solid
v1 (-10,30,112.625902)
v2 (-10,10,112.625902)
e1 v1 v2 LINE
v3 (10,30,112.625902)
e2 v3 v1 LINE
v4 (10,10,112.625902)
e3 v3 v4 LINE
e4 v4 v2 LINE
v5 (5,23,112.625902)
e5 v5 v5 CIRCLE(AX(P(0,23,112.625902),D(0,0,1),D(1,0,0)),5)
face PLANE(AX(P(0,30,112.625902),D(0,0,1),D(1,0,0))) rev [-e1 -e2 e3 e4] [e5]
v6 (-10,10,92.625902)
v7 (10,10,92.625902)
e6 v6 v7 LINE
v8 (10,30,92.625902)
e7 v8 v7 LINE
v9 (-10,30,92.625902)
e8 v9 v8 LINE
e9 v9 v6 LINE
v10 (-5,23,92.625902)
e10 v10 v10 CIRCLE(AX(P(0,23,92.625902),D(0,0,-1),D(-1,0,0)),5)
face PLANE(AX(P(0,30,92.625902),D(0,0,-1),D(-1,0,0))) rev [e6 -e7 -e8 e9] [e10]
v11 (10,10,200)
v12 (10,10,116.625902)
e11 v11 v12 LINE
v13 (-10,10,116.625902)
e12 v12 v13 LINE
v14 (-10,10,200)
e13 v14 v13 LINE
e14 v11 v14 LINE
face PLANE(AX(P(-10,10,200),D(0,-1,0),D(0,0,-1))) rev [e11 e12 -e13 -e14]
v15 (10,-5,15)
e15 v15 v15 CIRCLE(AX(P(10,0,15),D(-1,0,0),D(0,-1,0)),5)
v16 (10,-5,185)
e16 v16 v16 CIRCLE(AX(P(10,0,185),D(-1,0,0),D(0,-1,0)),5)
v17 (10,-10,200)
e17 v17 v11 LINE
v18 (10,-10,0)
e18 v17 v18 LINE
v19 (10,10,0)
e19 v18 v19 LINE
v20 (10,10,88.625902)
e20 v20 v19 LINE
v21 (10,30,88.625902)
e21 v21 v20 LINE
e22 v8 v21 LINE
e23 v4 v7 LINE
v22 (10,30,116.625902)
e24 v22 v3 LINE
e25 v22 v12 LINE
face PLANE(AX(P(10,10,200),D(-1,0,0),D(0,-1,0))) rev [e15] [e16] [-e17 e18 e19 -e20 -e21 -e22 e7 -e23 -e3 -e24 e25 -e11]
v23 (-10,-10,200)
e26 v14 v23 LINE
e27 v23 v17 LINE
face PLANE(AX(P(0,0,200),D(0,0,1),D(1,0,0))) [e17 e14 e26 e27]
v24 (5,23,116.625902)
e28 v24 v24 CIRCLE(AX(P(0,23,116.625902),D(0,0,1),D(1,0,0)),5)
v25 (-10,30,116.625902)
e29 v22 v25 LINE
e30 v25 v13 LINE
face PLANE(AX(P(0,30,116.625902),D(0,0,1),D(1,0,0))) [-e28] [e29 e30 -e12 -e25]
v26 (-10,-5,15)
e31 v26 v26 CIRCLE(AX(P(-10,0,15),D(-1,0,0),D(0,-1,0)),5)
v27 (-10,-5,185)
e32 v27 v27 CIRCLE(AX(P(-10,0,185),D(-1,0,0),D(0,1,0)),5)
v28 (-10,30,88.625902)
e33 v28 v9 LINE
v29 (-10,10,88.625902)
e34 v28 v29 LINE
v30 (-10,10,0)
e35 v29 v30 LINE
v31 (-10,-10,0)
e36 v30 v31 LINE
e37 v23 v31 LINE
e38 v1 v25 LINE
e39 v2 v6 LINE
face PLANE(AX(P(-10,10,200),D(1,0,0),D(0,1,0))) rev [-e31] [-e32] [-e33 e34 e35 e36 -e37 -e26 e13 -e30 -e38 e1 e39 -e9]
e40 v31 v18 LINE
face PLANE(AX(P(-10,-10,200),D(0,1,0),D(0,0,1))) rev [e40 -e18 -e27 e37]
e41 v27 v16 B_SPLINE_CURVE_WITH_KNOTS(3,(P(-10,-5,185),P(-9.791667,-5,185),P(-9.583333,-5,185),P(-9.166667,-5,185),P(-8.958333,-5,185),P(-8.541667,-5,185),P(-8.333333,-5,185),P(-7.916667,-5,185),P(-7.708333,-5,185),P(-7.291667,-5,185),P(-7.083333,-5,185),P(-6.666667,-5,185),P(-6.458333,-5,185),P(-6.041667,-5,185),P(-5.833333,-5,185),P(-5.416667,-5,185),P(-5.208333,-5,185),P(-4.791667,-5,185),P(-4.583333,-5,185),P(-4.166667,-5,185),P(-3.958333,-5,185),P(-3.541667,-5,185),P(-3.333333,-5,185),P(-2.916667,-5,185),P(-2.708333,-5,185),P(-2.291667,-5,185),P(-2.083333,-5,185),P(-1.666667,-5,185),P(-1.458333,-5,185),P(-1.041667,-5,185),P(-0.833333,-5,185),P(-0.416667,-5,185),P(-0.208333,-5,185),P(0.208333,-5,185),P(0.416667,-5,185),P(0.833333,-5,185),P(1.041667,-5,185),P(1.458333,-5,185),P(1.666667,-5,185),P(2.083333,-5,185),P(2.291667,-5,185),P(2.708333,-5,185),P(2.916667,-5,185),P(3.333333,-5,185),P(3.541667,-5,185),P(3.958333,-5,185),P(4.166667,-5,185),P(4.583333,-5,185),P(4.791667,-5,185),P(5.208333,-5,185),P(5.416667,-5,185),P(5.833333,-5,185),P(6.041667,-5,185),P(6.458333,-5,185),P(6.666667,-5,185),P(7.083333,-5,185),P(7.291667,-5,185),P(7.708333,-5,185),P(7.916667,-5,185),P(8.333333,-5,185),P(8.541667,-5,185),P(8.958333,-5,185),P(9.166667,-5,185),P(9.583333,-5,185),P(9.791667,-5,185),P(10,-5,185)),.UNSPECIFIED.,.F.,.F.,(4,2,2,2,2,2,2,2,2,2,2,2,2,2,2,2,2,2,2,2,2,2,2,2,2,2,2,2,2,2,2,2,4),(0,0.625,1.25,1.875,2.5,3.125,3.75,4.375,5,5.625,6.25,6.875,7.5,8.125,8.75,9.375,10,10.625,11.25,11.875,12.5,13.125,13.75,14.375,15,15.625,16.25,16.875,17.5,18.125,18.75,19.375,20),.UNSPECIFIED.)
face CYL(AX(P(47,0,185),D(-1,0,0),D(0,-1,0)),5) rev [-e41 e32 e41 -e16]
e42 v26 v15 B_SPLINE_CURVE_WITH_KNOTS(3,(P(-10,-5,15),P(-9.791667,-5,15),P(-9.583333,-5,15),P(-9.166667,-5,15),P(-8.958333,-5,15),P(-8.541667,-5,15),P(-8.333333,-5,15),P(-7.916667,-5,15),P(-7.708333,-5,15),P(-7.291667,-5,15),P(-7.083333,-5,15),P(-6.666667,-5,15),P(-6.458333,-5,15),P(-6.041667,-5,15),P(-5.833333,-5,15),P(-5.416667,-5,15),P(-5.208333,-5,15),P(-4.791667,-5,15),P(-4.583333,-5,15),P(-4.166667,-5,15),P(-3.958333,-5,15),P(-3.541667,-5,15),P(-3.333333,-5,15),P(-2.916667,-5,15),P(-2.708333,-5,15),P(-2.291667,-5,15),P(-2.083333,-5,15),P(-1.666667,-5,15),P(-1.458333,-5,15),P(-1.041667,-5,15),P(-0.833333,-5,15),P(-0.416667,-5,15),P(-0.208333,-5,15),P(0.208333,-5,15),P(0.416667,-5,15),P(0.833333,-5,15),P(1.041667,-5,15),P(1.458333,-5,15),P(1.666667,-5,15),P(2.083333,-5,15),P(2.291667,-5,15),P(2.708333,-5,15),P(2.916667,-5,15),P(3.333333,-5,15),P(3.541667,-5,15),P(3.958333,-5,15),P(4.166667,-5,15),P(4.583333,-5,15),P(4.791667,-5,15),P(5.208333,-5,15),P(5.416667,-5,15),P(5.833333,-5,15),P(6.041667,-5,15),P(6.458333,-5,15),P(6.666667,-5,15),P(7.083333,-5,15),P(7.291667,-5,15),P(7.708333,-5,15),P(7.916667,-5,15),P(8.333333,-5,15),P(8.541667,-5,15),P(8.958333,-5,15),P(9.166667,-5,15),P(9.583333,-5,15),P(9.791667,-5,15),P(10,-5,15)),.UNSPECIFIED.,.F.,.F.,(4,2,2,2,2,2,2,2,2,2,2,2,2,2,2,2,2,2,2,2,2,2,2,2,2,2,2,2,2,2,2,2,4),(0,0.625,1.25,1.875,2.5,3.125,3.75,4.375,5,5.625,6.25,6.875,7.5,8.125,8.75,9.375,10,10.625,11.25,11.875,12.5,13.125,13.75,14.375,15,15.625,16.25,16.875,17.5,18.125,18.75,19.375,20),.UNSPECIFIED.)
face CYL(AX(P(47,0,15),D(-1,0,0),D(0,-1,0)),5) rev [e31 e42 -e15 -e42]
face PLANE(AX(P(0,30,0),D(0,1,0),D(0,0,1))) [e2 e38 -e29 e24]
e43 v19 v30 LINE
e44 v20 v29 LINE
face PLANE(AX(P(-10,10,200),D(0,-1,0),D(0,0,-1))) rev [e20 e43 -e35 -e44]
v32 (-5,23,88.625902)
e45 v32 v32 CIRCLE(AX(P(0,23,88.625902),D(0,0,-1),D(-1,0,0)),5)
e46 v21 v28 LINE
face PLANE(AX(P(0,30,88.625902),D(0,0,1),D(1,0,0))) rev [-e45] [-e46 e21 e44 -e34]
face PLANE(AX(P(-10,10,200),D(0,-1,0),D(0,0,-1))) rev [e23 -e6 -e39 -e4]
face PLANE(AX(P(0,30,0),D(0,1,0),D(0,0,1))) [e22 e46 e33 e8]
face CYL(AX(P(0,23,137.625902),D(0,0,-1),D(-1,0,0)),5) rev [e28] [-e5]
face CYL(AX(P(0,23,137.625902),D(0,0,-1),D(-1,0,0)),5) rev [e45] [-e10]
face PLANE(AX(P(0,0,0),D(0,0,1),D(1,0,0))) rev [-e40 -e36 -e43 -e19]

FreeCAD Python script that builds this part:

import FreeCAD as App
import Part
import Sketcher

V = App.Vector


def add_polygon(sketch, points):
    """Adds a closed chain of lines whose ends are joined by coincident constraints."""
    first, n = sketch.GeometryCount, len(points)
    for a, b in zip(points, points[1:] + points[:1]):
        sketch.addGeometry(Part.LineSegment(App.Vector(*a, 0), App.Vector(*b, 0)), False)
    for i in range(n):
        sketch.addConstraint(Sketcher.Constraint("Coincident", first + i, 2, first + (i + 1) % n, 1))

doc = App.newDocument("Part")
params = doc.addObject("Spreadsheet::Sheet", "Params")
for row, (alias, value) in enumerate([
    ("sketch1_width", "20 mm"),
    ("pad1_length", "200 mm"),
    ("sketch2_diameter", "10 mm"),
    ("pocket1_length", "57 mm"),
    ("sketch3_width", "20 mm"),
    ("sketch3_height", "4 mm"),
    ("pad2_length", "20 mm"),
    ("sketch4_diameter", "10 mm"),
    ("pocket2_length", "49 mm"),
], start=1):
    params.set(f"A{row}", alias)
    params.set(f"B{row}", "=" + value)
    params.setAlias(f"B{row}", alias)

body = doc.addObject("PartDesign::Body", "Body")

# Sketch on XY plane
sketch1 = body.newObject("Sketcher::SketchObject", "Sketch")
sketch1.AttachmentSupport = (doc.getObject("XY_Plane"), [""])
sketch1.MapMode = "FlatFace"
add_polygon(sketch1, [(-10, 10), (-10, -10), (10, -10), (10, 10)])  # lines 0-3
sketch1.addConstraint(Sketcher.Constraint("Vertical", 0))
sketch1.addConstraint(Sketcher.Constraint("Horizontal", 1))
sketch1.addConstraint(Sketcher.Constraint("Vertical", 2))
sketch1.addConstraint(Sketcher.Constraint("Horizontal", 3))
sketch1.addConstraint(Sketcher.Constraint("Symmetric", 0, 2, 2, 2, -1, 1))
sketch1.addConstraint(Sketcher.Constraint("Equal", 3, 0))
sketch1.addConstraint(Sketcher.Constraint("DistanceX", 1, 1, 1, 2, 20.0))
sketch1.setExpression("Constraints[10]", "Params.sketch1_width")
pad1 = body.newObject("PartDesign::Pad", "Pad")
pad1.Profile = sketch1
pad1.setExpression("Length", "Params.pad1_length")

# Sketch on YZ plane
sketch2 = body.newObject("Sketcher::SketchObject", "Sketch001")
sketch2.AttachmentSupport = (doc.getObject("YZ_Plane"), [""])
sketch2.MapMode = "FlatFace"
sketch2.AttachmentOffset = App.Placement(V(0, 0, -10), App.Rotation())
sketch2.addGeometry(Part.Circle(V(0, 15, 0), V(0, 0, 1), 5), False)
sketch2.addGeometry(Part.Circle(V(0, 185, 0), V(0, 0, 1), 5), False)
sketch2.addConstraint(Sketcher.Constraint("Equal", 0, 1))
sketch2.addConstraint(Sketcher.Constraint("PointOnObject", 0, 3, -2))
sketch2.addConstraint(Sketcher.Constraint("PointOnObject", 1, 3, -2))
sketch2.addConstraint(Sketcher.Constraint("Diameter", 0, 10.0))
sketch2.addConstraint(Sketcher.Constraint("DistanceY", -1, 1, 0, 3, 15.0))
sketch2.addConstraint(Sketcher.Constraint("DistanceY", -1, 1, 1, 3, 185.0))
sketch2.setExpression("Constraints[3]", "Params.sketch2_diameter")
pocket1 = body.newObject("PartDesign::Pocket", "Pocket")
pocket1.Profile = sketch2
pocket1.setExpression("Length", "Params.pocket1_length")
pocket1.Reversed = True

# Sketch on XZ plane
sketch3 = body.newObject("Sketcher::SketchObject", "Sketch002")
sketch3.AttachmentSupport = (doc.getObject("XZ_Plane"), [""])
sketch3.MapMode = "FlatFace"
sketch3.AttachmentOffset = App.Placement(V(0, 0, -10), App.Rotation())
add_polygon(sketch3, [(-10, 112.625902), (-10, 116.625902), (10, 116.625902), (10, 112.625902)])  # lines 0-3
add_polygon(sketch3, [(-10, 88.625902), (-10, 92.625902), (10, 92.625902), (10, 88.625902)])  # lines 4-7
sketch3.addConstraint(Sketcher.Constraint("Vertical", 0))
sketch3.addConstraint(Sketcher.Constraint("Horizontal", 1))
sketch3.addConstraint(Sketcher.Constraint("Vertical", 2))
sketch3.addConstraint(Sketcher.Constraint("Horizontal", 3))
sketch3.addConstraint(Sketcher.Constraint("Vertical", 4))
sketch3.addConstraint(Sketcher.Constraint("Horizontal", 5))
sketch3.addConstraint(Sketcher.Constraint("Vertical", 6))
sketch3.addConstraint(Sketcher.Constraint("Horizontal", 7))
sketch3.addConstraint(Sketcher.Constraint("Vertical", 3, 2, 4, 2))
sketch3.addConstraint(Sketcher.Constraint("Vertical", 2, 2, 5, 2))
sketch3.addConstraint(Sketcher.Constraint("Equal", 2, 4))
sketch3.addConstraint(Sketcher.Constraint("DistanceX", 1, 1, 1, 2, 20.0))
sketch3.addConstraint(Sketcher.Constraint("DistanceY", 0, 1, 0, 2, 4.0))
sketch3.addConstraint(Sketcher.Constraint("DistanceX", 0, 2, -1, 1, 10.0))
sketch3.addConstraint(Sketcher.Constraint("DistanceY", 4, 2, 3, 2, 20.0))
sketch3.addConstraint(Sketcher.Constraint("DistanceY", -1, 1, 0, 2, 116.625902))
sketch3.setExpression("Constraints[19]", "Params.sketch3_width")
sketch3.setExpression("Constraints[20]", "Params.sketch3_height")
pad2 = body.newObject("PartDesign::Pad", "Pad001")
pad2.Profile = sketch3
pad2.setExpression("Length", "Params.pad2_length")
pad2.Reversed = True

# Sketch on XY plane
sketch4 = body.newObject("Sketcher::SketchObject", "Sketch003")
sketch4.AttachmentSupport = (doc.getObject("XY_Plane"), [""])
sketch4.MapMode = "FlatFace"
sketch4.AttachmentOffset = App.Placement(V(0, 0, 88.625902), App.Rotation())
sketch4.addGeometry(Part.Circle(V(0, 23, 0), V(0, 0, 1), 5), False)
sketch4.addConstraint(Sketcher.Constraint("PointOnObject", 0, 3, -2))
sketch4.addConstraint(Sketcher.Constraint("Diameter", 0, 10.0))
sketch4.addConstraint(Sketcher.Constraint("DistanceY", -1, 1, 0, 3, 23.0))
sketch4.setExpression("Constraints[1]", "Params.sketch4_diameter")
pocket2 = body.newObject("PartDesign::Pocket", "Pocket001")
pocket2.Profile = sketch4
pocket2.setExpression("Length", "Params.pocket2_length")
pocket2.Reversed = True

doc.recompute()
